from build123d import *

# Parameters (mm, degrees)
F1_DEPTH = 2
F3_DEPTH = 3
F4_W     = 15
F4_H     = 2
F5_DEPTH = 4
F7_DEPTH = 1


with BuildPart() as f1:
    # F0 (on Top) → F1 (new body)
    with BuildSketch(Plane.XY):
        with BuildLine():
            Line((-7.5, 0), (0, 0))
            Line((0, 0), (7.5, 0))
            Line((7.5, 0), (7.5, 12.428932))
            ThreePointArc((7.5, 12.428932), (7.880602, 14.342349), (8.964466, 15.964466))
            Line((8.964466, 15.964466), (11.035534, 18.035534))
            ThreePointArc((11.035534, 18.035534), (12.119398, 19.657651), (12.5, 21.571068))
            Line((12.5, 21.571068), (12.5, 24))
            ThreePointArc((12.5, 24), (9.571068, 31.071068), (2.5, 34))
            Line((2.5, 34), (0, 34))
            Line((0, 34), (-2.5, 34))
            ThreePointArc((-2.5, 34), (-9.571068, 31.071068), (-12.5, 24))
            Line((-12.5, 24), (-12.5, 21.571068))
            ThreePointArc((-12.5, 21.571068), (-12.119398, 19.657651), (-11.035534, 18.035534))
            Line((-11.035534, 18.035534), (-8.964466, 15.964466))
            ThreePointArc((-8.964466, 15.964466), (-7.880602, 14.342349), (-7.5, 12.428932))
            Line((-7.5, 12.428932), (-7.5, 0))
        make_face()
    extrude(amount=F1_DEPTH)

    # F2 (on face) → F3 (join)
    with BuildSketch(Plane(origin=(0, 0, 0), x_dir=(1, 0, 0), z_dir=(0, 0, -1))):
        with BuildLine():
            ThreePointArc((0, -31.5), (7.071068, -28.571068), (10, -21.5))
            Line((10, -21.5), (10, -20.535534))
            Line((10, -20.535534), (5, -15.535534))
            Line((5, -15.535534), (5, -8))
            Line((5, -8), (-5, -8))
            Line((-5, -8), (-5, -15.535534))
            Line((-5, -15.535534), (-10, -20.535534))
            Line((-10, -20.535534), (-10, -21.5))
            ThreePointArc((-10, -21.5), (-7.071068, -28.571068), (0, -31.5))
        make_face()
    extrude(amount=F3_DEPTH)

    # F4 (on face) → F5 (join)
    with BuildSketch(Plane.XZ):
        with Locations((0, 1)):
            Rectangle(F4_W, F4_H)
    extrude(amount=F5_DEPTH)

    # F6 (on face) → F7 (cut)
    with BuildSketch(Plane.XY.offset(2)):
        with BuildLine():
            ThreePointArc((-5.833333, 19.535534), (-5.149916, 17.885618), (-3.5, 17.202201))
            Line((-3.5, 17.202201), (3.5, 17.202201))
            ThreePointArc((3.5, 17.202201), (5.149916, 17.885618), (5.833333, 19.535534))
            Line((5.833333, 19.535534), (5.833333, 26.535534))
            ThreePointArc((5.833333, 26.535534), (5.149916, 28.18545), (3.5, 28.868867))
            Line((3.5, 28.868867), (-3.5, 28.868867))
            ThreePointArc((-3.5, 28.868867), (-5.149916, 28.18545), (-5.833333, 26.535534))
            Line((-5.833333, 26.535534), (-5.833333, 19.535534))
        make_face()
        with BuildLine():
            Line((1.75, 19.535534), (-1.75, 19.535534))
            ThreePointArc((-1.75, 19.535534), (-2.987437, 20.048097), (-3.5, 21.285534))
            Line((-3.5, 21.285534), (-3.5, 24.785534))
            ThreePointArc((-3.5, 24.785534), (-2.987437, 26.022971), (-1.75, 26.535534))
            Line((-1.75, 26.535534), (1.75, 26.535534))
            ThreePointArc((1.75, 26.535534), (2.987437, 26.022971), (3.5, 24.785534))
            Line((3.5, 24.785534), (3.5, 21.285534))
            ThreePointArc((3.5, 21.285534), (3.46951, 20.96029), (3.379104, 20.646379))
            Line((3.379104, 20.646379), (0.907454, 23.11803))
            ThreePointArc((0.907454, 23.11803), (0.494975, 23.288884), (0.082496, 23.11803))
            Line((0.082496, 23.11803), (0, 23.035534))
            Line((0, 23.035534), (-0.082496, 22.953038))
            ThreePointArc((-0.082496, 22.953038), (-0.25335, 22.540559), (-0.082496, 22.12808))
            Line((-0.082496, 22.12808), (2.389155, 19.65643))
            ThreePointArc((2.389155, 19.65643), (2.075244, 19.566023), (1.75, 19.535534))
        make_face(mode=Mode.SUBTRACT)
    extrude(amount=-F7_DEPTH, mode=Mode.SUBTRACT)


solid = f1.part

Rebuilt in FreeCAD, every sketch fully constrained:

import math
import FreeCAD as App
import Part
import Sketcher

V = App.Vector


def add_polygon(sketch, points):
    """Adds a closed chain of lines whose ends are joined by coincident constraints."""
    first, n = sketch.GeometryCount, len(points)
    for a, b in zip(points, points[1:] + points[:1]):
        sketch.addGeometry(Part.LineSegment(App.Vector(*a, 0), App.Vector(*b, 0)), False)
    for i in range(n):
        sketch.addConstraint(Sketcher.Constraint("Coincident", first + i, 2, first + (i + 1) % n, 1))

doc = App.newDocument("Part")
body = doc.addObject("PartDesign::Body", "Body")

sketch1 = body.newObject("Sketcher::SketchObject", "Sketch")
sketch1.AttachmentSupport = (doc.getObject("XY_Plane"), [""])
sketch1.MapMode = "FlatFace"
sketch1.addGeometry([
    Part.LineSegment(V(-7.5, 0, 0), V(7.5, 0, 0)),
    Part.LineSegment(V(7.5, 0, 0), V(7.5, 12.4, 0)),
    Part.ArcOfCircle(Part.Circle(V(12.5, 12.4, 0), V(0, 0, 1), 5), math.radians(135), math.radians(180)),
    Part.LineSegment(V(9, 16, 0), V(11, 18, 0)),
    Part.ArcOfCircle(Part.Circle(V(7.5, 21.6, 0), V(0, 0, 1), 5), math.radians(-45), math.radians(0)),
    Part.LineSegment(V(12.5, 21.6, 0), V(12.5, 24, 0)),
    Part.ArcOfCircle(Part.Circle(V(2.5, 24, 0), V(0, 0, 1), 10), math.radians(0), math.radians(90)),
    Part.LineSegment(V(2.5, 34, 0), V(-2.5, 34, 0)),
    Part.ArcOfCircle(Part.Circle(V(-2.5, 24, 0), V(0, 0, 1), 10), math.radians(90), math.radians(180)),
    Part.LineSegment(V(-12.5, 24, 0), V(-12.5, 21.6, 0)),
    Part.ArcOfCircle(Part.Circle(V(-7.5, 21.6, 0), V(0, 0, 1), 5), math.radians(180), math.radians(225)),
    Part.LineSegment(V(-11, 18, 0), V(-9, 16, 0)),
    Part.ArcOfCircle(Part.Circle(V(-12.5, 12.4, 0), V(0, 0, 1), 5), math.radians(0), math.radians(45)),
    Part.LineSegment(V(-7.5, 12.4, 0), V(-7.5, 0, 0)),
], False)
sketch1.addConstraint([
    Sketcher.Constraint("Coincident", 0, 2, 1, 1),
    Sketcher.Constraint("Tangent", 1, 2, 2, 2),
    Sketcher.Constraint("Tangent", 2, 1, 3, 1),
    Sketcher.Constraint("Tangent", 3, 2, 4, 1),
    Sketcher.Constraint("Tangent", 4, 2, 5, 1),
    Sketcher.Constraint("Tangent", 5, 2, 6, 1),
    Sketcher.Constraint("Tangent", 6, 2, 7, 1),
    Sketcher.Constraint("Tangent", 7, 2, 8, 1),
    Sketcher.Constraint("Tangent", 8, 2, 9, 1),
    Sketcher.Constraint("Tangent", 9, 2, 10, 1),
    Sketcher.Constraint("Tangent", 10, 2, 11, 1),
    Sketcher.Constraint("Tangent", 11, 2, 12, 2),
    Sketcher.Constraint("Tangent", 12, 1, 13, 1),
    Sketcher.Constraint("Coincident", 13, 2, 0, 1),
    Sketcher.Constraint("Horizontal", 0),
    Sketcher.Constraint("Vertical", 1),
    Sketcher.Constraint("Vertical", 5),
    Sketcher.Constraint("Horizontal", 7),
    Sketcher.Constraint("Vertical", 9),
    Sketcher.Constraint("Vertical", 13),
    Sketcher.Constraint("Equal", 2, 4),
    Sketcher.Constraint("Equal", 6, 8),
    Sketcher.Constraint("Equal", 4, 10),
    Sketcher.Constraint("Equal", 10, 12),
    Sketcher.Constraint("Symmetric", 0, 2, 13, 2, -1, 1),
    Sketcher.Constraint("Symmetric", 4, 3, 10, 3, -2),
    Sketcher.Constraint("Perpendicular", 3, 11),
    Sketcher.Constraint("Horizontal", 2, 3, 12, 3),
    Sketcher.Constraint("Radius", 6, 9.999999),
    Sketcher.Constraint("DistanceX", 0, 1, 0, 2, 15.0),
    Sketcher.Constraint("DistanceX", 7, 2, 7, 1, 5.0),
    Sketcher.Constraint("DistanceY", -1, 1, 6, 3, 24.000001),
    Sketcher.Constraint("DistanceX", 6, 3, 4, 3, 5.000002),
    Sketcher.Constraint("DistanceY", 5, 1, 5, 2, 2.428932),
])
pad1 = body.newObject("PartDesign::Pad", "Pad")
pad1.Profile = sketch1
pad1.Length = 2

sketch2 = body.newObject("Sketcher::SketchObject", "Sketch001")
sketch2.AttachmentSupport = (doc.getObject("XY_Plane"), [""])
sketch2.MapMode = "FlatFace"
sketch2.addGeometry([
    Part.ArcOfCircle(Part.Circle(V(0, 21.5, 0), V(0, 0, 1), 10), math.radians(0), math.radians(90)),
    Part.LineSegment(V(10, 21.5, 0), V(10, 20.5, 0)),
    Part.LineSegment(V(10, 20.5, 0), V(5, 15.5, 0)),
    Part.LineSegment(V(5, 15.5, 0), V(5, 8, 0)),
    Part.LineSegment(V(5, 8, 0), V(-5, 8, 0)),
    Part.LineSegment(V(-5, 8, 0), V(-5, 15.5, 0)),
    Part.LineSegment(V(-5, 15.5, 0), V(-10, 20.5, 0)),
    Part.LineSegment(V(-10, 20.5, 0), V(-10, 21.5, 0)),
    Part.ArcOfCircle(Part.Circle(V(0, 21.5, 0), V(0, 0, 1), 10), math.radians(90), math.radians(180)),
], False)
sketch2.addConstraint([
    Sketcher.Constraint("Tangent", 0, 1, 1, 1),
    Sketcher.Constraint("Coincident", 1, 2, 2, 1),
    Sketcher.Constraint("Coincident", 2, 2, 3, 1),
    Sketcher.Constraint("Coincident", 3, 2, 4, 1),
    Sketcher.Constraint("Coincident", 4, 2, 5, 1),
    Sketcher.Constraint("Coincident", 5, 2, 6, 1),
    Sketcher.Constraint("Coincident", 6, 2, 7, 1),
    Sketcher.Constraint("Tangent", 7, 2, 8, 2),
    Sketcher.Constraint("Tangent", 8, 1, 0, 2),
    Sketcher.Constraint("Vertical", 1),
    Sketcher.Constraint("Vertical", 3),
    Sketcher.Constraint("Horizontal", 4),
    Sketcher.Constraint("Vertical", 5),
    Sketcher.Constraint("Vertical", 7),
    Sketcher.Constraint("Equal", 0, 8),
    Sketcher.Constraint("Symmetric", 2, 2, 5, 2, -2),
    Sketcher.Constraint("Symmetric", 1, 2, 6, 2, -2),
    Sketcher.Constraint("PointOnObject", 8, 1, -2),
    Sketcher.Constraint("Perpendicular", 2, 6),
    Sketcher.Constraint("Radius", 0, 9.999999),
    Sketcher.Constraint("DistanceX", 4, 2, 4, 1, 10.0),
    Sketcher.Constraint("DistanceY", -1, 1, 3, 2, 8.0),
    Sketcher.Constraint("DistanceY", -1, 1, 0, 3, 21.500001),
    Sketcher.Constraint("DistanceY", 1, 2, 1, 1, 0.964466),
])
pad2 = body.newObject("PartDesign::Pad", "Pad001")
pad2.Profile = sketch2
pad2.Length = 3
pad2.Reversed = True

sketch3 = body.newObject("Sketcher::SketchObject", "Sketch002")
sketch3.AttachmentSupport = (doc.getObject("XZ_Plane"), [""])
sketch3.MapMode = "FlatFace"
add_polygon(sketch3, [(-7.5, 2), (-7.5, 0), (7.5, 0), (7.5, 2)])
sketch3.addConstraint([
    Sketcher.Constraint("Vertical", 0),
    Sketcher.Constraint("Horizontal", 1),
    Sketcher.Constraint("Vertical", 2),
    Sketcher.Constraint("Horizontal", 3),
    Sketcher.Constraint("Symmetric", 0, 2, 1, 2, -1, 1),
    Sketcher.Constraint("DistanceX", 1, 1, 1, 2, 15.0),
    Sketcher.Constraint("DistanceY", 0, 2, 0, 1, 2.0),
])
pad3 = body.newObject("PartDesign::Pad", "Pad002")
pad3.Profile = sketch3
pad3.Length = 4

sketch4 = body.newObject("Sketcher::SketchObject", "Sketch003")
sketch4.AttachmentSupport = (doc.getObject("XY_Plane"), [""])
sketch4.MapMode = "FlatFace"
sketch4.AttachmentOffset = App.Placement(V(0, 0, 2), App.Rotation())
sketch4.addGeometry([
    Part.ArcOfCircle(Part.Circle(V(-3.5, 19.54, 0), V(0, 0, 1), 2.33), math.radians(180), math.radians(270)),
    Part.LineSegment(V(-3.5, 17.2, 0), V(3.5, 17.2, 0)),
    Part.ArcOfCircle(Part.Circle(V(3.5, 19.54, 0), V(0, 0, 1), 2.33), math.radians(-90), math.radians(0)),
    Part.LineSegment(V(5.83, 19.54, 0), V(5.83, 26.54, 0)),
    Part.ArcOfCircle(Part.Circle(V(3.5, 26.54, 0), V(0, 0, 1), 2.33), math.radians(0), math.radians(90)),
    Part.LineSegment(V(3.5, 28.87, 0), V(-3.5, 28.87, 0)),
    Part.ArcOfCircle(Part.Circle(V(-3.5, 26.54, 0), V(0, 0, 1), 2.33), math.radians(90), math.radians(180)),
    Part.LineSegment(V(-5.83, 26.54, 0), V(-5.83, 19.54, 0)),
    Part.ArcOfCircle(Part.Circle(V(1.75, 21.29, 0), V(0, 0, 1), 1.75), math.radians(-90), math.radians(-69)),
    Part.LineSegment(V(1.75, 19.54, 0), V(-1.75, 19.54, 0)),
    Part.ArcOfCircle(Part.Circle(V(-1.75, 21.29, 0), V(0, 0, 1), 1.75), math.radians(180), math.radians(270)),
    Part.LineSegment(V(-3.5, 21.29, 0), V(-3.5, 24.79, 0)),
    Part.ArcOfCircle(Part.Circle(V(-1.75, 24.79, 0), V(0, 0, 1), 1.75), math.radians(90), math.radians(180)),
    Part.LineSegment(V(-1.75, 26.54, 0), V(1.75, 26.54, 0)),
    Part.ArcOfCircle(Part.Circle(V(1.75, 24.79, 0), V(0, 0, 1), 1.75), math.radians(0), math.radians(90)),
    Part.LineSegment(V(3.5, 24.79, 0), V(3.5, 21.29, 0)),
    Part.ArcOfCircle(Part.Circle(V(1.75, 21.29, 0), V(0, 0, 1), 1.75), math.radians(-21), math.radians(0)),
    Part.LineSegment(V(3.38, 20.65, 0), V(0.91, 23.12, 0)),
    Part.ArcOfCircle(Part.Circle(V(0.49, 22.71, 0), V(0, 0, 1), 0.58), math.radians(45), math.radians(135)),
    Part.LineSegment(V(0.08, 23.12, 0), V(-0.08, 22.95, 0)),
    Part.ArcOfCircle(Part.Circle(V(0.33, 22.54, 0), V(0, 0, 1), 0.58), math.radians(135), math.radians(225)),
    Part.LineSegment(V(-0.08, 22.13, 0), V(2.39, 19.66, 0)),
], False)
sketch4.addConstraint([
    Sketcher.Constraint("Tangent", 0, 2, 1, 1),
    Sketcher.Constraint("Tangent", 1, 2, 2, 1),
    Sketcher.Constraint("Tangent", 2, 2, 3, 1),
    Sketcher.Constraint("Tangent", 3, 2, 4, 1),
    Sketcher.Constraint("Tangent", 4, 2, 5, 1),
    Sketcher.Constraint("Tangent", 5, 2, 6, 1),
    Sketcher.Constraint("Tangent", 6, 2, 7, 1),
    Sketcher.Constraint("Tangent", 7, 2, 0, 1),
    Sketcher.Constraint("Coincident", 8, 1, 9, 1),
    Sketcher.Constraint("Tangent", 9, 2, 10, 2),
    Sketcher.Constraint("Tangent", 10, 1, 11, 1),
    Sketcher.Constraint("Tangent", 11, 2, 12, 2),
    Sketcher.Constraint("Tangent", 12, 1, 13, 1),
    Sketcher.Constraint("Tangent", 13, 2, 14, 2),
    Sketcher.Constraint("Tangent", 14, 1, 15, 1),
    Sketcher.Constraint("Coincident", 15, 2, 16, 2),
    Sketcher.Constraint("Coincident", 16, 1, 17, 1),
    Sketcher.Constraint("Tangent", 17, 2, 18, 1),
    Sketcher.Constraint("Tangent", 18, 2, 19, 1),
    Sketcher.Constraint("Tangent", 19, 2, 20, 1),
    Sketcher.Constraint("Tangent", 20, 2, 21, 1),
    Sketcher.Constraint("Coincident", 21, 2, 8, 2),
    Sketcher.Constraint("Horizontal", 1),
    Sketcher.Constraint("Vertical", 3),
    Sketcher.Constraint("Horizontal", 5),
    Sketcher.Constraint("Vertical", 7),
    Sketcher.Constraint("Horizontal", 9),
    Sketcher.Constraint("Vertical", 11),
    Sketcher.Constraint("Horizontal", 13),
    Sketcher.Constraint("Vertical", 15),
    Sketcher.Constraint("Equal", 0, 2),
    Sketcher.Constraint("Equal", 2, 4),
    Sketcher.Constraint("Equal", 4, 6),
    Sketcher.Constraint("Equal", 10, 12),
    Sketcher.Constraint("Equal", 12, 14),
    Sketcher.Constraint("Equal", 18, 20),
    Sketcher.Constraint("Symmetric", 10, 1, 15, 2, -2),
    Sketcher.Constraint("Perpendicular", 17, 19),
    Sketcher.Constraint("Perpendicular", 19, 21),
    Sketcher.Constraint("Horizontal", 7, 2, 8, 1),
    Sketcher.Constraint("Horizontal", 6, 2, 12, 1),
    Sketcher.Constraint("Horizontal", 17, 2, 18, 2),
    Sketcher.Constraint("Vertical", 14, 3, 8, 1),
    Sketcher.Constraint("Vertical", 5, 2, 10, 1),
    Sketcher.Constraint("Vertical", 4, 2, 14, 1),
    Sketcher.Constraint("Equal", 5, 3),
    Sketcher.Constraint("Equal", 17, 21),
    Sketcher.Constraint("DistanceX", 1, 1, 1, 2, 7.0),
    Sketcher.Constraint("Radius", 10, 1.75),
    Sketcher.Constraint("Radius", 0, 2.333332),
    Sketcher.Constraint("Radius", 16, 1.750019),
    Sketcher.Constraint("Radius", 8, 1.749963),
    Sketcher.Constraint("Radius", 18, 0.583334),
    Sketcher.Constraint("DistanceY", -1, 1, 0, 2, 17.202201),
    Sketcher.Constraint("Distance", 17, 3.495442),
    Sketcher.Constraint("DistanceY", -1, 1, 16, 3, 21.285538),
    Sketcher.Constraint("DistanceY", -1, 1, 18, 3, 22.70555),
    Sketcher.Constraint("DistanceY", -1, 1, 20, 3, 22.540559),
])
pocket1 = body.newObject("PartDesign::Pocket", "Pocket")
pocket1.Profile = sketch4
pocket1.Length = 1

doc.recompute()
